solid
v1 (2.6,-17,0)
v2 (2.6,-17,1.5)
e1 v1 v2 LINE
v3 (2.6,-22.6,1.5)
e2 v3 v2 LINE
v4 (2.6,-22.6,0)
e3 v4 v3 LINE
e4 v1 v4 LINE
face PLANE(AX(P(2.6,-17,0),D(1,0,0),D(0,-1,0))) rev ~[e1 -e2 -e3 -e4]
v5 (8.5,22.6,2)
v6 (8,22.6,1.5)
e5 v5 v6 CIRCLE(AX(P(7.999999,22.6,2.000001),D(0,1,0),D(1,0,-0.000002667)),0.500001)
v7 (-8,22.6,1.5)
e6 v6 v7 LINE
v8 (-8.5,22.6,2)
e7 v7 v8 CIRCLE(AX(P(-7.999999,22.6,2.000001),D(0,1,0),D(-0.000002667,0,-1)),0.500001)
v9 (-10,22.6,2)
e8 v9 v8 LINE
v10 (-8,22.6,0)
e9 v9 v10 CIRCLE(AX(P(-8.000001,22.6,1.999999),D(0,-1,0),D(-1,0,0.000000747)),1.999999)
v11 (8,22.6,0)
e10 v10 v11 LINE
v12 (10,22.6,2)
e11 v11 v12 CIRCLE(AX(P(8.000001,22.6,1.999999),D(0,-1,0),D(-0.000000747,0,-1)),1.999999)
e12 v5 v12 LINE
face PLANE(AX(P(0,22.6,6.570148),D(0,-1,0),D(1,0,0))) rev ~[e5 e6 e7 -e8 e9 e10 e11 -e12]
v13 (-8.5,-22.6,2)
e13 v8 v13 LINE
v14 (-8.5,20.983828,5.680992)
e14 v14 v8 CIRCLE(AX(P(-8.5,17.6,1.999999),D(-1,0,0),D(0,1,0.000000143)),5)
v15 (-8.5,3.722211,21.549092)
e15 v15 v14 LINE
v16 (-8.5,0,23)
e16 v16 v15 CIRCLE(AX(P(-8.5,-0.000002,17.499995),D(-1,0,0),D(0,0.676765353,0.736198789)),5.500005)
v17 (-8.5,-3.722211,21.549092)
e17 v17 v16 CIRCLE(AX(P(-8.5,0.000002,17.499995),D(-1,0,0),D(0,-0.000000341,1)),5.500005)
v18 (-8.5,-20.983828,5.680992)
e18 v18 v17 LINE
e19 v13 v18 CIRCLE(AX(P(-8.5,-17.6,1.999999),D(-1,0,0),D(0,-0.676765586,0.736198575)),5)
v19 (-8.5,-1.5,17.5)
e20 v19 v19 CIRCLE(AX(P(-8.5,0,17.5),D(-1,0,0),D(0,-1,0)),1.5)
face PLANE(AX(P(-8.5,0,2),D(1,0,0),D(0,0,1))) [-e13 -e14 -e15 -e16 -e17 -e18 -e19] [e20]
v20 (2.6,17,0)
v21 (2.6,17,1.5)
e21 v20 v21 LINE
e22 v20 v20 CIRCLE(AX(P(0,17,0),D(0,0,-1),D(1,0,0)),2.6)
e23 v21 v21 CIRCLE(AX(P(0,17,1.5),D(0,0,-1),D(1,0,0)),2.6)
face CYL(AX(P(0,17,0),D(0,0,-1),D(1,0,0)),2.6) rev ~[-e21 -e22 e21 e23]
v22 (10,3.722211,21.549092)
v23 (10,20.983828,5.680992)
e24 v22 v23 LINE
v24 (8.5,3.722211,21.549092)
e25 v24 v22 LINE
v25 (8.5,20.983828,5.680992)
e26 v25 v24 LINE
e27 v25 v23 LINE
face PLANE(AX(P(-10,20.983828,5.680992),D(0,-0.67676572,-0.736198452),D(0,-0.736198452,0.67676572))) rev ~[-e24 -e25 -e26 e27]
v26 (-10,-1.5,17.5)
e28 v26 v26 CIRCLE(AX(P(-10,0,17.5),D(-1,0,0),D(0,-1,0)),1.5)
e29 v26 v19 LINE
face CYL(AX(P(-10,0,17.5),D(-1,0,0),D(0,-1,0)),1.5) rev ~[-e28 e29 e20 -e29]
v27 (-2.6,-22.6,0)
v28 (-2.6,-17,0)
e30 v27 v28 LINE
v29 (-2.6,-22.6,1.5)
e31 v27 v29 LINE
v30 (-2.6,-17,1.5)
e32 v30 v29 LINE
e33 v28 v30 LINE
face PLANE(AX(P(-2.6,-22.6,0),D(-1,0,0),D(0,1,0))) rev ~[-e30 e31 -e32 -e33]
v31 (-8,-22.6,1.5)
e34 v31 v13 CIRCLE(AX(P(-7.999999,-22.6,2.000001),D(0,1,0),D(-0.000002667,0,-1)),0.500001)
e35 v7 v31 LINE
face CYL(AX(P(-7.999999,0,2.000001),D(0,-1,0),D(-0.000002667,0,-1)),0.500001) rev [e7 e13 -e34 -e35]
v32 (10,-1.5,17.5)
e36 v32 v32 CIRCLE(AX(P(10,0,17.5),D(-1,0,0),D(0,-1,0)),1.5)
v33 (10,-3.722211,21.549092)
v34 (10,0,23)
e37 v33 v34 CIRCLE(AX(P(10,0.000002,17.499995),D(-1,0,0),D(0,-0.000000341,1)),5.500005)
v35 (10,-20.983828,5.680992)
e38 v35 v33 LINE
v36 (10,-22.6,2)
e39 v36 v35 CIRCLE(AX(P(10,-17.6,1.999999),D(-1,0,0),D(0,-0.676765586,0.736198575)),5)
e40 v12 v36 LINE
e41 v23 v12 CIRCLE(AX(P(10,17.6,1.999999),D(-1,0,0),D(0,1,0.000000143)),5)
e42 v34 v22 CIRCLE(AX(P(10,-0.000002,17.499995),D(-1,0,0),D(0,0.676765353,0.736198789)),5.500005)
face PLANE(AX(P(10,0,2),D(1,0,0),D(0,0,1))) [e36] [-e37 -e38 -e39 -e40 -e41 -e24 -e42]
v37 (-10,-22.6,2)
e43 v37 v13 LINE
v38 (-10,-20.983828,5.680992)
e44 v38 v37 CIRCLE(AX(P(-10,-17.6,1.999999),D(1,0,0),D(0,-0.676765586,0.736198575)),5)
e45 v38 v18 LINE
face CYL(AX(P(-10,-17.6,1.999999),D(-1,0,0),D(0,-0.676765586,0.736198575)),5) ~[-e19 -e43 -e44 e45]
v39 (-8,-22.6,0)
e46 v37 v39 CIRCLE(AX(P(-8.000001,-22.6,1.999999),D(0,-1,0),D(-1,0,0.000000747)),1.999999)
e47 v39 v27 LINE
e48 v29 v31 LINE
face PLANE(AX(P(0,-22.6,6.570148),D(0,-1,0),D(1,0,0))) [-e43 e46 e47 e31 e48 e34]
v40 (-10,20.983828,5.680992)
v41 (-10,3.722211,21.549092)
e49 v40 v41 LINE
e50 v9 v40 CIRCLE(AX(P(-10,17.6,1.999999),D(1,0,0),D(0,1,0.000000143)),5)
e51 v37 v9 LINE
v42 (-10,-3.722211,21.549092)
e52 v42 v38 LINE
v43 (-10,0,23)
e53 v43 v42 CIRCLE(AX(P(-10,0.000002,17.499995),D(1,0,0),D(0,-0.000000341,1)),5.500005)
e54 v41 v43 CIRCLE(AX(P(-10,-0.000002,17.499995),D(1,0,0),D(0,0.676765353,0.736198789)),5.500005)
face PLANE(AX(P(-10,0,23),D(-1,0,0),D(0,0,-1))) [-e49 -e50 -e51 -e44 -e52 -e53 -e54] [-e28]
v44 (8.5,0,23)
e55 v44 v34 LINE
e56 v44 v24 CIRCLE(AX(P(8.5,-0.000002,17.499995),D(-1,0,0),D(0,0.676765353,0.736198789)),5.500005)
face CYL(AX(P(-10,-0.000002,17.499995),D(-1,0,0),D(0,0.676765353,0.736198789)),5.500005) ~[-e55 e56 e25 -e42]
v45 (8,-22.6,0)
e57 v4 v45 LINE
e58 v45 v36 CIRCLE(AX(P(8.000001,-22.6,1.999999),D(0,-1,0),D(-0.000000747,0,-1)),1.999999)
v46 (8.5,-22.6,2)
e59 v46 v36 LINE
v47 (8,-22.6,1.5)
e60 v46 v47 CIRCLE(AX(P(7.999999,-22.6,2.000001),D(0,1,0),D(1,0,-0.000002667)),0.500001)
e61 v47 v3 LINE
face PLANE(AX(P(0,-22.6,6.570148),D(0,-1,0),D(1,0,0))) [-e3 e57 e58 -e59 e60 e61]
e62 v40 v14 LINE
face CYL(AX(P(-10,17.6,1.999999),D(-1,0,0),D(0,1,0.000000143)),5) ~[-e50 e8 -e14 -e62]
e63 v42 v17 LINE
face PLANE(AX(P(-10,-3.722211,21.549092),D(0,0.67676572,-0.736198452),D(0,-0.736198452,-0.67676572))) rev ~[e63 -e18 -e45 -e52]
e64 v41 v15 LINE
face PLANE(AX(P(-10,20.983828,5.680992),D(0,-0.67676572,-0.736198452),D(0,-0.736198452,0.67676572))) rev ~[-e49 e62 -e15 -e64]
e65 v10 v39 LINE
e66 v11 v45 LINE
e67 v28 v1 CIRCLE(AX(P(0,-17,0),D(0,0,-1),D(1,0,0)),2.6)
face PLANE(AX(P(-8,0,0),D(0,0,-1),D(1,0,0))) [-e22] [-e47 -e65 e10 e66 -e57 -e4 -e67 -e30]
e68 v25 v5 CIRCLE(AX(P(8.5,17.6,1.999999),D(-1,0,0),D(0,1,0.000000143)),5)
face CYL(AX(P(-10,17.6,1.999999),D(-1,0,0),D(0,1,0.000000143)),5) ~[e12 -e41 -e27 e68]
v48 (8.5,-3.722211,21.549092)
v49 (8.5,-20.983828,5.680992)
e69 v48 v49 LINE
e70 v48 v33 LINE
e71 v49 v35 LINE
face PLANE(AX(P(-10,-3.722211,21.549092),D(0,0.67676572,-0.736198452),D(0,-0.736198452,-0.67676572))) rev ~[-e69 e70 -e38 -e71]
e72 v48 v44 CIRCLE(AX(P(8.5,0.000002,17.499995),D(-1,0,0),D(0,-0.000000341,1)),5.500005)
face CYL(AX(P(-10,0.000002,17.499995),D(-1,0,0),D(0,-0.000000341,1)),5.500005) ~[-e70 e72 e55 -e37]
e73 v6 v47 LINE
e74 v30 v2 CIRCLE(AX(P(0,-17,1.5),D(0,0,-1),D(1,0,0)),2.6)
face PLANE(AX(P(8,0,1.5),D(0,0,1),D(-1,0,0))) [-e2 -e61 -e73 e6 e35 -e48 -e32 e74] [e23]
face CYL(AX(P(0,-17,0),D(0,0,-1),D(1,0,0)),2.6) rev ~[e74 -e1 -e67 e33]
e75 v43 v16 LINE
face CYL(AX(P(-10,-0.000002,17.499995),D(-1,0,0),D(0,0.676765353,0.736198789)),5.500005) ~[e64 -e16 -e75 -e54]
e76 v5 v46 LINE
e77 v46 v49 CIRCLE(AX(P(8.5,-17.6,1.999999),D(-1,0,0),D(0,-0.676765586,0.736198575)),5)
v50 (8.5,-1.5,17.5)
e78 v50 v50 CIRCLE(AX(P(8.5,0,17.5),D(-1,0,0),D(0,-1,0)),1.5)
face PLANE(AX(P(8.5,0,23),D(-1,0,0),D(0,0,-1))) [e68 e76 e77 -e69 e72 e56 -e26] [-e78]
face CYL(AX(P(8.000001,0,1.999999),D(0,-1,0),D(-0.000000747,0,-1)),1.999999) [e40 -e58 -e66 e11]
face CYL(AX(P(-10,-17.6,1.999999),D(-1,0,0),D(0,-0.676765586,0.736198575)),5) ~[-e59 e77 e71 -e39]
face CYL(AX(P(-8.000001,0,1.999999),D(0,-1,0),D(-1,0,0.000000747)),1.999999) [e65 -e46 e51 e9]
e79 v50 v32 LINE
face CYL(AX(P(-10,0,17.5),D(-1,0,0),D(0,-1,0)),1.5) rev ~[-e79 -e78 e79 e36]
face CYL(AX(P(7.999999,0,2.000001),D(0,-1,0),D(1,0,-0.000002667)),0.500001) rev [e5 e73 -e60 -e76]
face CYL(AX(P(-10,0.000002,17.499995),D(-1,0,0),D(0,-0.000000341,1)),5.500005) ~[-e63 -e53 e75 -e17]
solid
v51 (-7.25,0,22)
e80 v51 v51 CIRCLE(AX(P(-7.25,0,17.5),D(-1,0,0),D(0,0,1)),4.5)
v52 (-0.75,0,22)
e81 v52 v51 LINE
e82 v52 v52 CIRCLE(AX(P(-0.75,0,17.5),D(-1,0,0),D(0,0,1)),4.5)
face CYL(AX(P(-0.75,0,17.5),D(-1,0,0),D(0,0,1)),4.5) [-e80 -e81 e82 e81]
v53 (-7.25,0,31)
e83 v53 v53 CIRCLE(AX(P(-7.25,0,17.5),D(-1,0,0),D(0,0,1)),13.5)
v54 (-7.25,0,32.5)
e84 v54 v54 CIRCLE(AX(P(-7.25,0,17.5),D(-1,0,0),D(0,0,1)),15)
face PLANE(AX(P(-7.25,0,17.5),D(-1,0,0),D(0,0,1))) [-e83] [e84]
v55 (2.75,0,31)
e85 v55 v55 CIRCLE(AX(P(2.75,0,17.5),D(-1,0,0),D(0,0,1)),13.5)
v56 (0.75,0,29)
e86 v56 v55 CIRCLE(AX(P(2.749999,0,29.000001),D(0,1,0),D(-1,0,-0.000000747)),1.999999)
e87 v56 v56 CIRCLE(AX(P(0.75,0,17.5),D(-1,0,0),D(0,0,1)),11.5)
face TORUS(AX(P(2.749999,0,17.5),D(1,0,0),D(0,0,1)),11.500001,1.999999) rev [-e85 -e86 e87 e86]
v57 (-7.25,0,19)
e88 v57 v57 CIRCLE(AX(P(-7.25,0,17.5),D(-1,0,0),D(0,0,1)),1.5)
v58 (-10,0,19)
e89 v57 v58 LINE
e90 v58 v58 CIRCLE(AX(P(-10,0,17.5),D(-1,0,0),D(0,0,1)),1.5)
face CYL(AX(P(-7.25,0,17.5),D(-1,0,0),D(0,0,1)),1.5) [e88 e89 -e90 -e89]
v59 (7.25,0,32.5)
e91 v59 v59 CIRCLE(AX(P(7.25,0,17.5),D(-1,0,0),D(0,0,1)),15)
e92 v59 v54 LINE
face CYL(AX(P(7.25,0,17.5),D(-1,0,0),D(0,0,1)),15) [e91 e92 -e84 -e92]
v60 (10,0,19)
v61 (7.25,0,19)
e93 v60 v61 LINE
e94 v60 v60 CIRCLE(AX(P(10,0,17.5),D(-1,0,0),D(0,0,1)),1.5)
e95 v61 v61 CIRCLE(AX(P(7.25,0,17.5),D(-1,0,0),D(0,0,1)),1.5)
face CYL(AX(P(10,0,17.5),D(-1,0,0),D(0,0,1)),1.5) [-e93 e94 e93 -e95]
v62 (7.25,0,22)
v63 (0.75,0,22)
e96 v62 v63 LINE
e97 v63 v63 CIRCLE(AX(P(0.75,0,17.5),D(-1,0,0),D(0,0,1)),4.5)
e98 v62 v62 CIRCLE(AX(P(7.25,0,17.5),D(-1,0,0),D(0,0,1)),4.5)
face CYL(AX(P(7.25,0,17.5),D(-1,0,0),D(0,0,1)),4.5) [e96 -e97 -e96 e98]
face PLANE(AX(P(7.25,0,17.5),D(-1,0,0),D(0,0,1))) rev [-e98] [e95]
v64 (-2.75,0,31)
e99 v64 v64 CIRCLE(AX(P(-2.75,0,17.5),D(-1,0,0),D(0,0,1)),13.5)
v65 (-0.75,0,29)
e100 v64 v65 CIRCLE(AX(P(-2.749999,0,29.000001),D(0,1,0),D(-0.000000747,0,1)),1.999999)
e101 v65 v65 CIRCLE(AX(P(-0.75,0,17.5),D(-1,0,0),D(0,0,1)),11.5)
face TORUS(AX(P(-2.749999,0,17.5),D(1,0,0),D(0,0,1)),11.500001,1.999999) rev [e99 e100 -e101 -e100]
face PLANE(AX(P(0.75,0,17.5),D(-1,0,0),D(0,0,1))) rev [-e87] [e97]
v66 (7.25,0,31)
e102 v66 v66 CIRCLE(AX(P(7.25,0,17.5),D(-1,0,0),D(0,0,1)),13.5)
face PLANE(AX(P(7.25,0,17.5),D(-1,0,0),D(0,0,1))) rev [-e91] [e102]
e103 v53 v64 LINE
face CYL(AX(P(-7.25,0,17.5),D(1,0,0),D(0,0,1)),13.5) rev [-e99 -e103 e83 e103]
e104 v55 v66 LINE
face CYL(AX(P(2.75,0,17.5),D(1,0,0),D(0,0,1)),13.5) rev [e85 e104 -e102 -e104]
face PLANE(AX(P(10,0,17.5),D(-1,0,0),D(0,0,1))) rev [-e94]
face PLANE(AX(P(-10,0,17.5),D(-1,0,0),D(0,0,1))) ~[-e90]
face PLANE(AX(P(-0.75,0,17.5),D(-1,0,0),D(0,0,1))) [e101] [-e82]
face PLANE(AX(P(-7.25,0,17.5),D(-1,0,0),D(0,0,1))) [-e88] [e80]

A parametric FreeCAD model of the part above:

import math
import FreeCAD as App
import Part
import Sketcher

V = App.Vector

doc = App.newDocument("Part")
body = doc.addObject("PartDesign::Body", "Body")

# Sketch on XZ plane
sketch1 = body.newObject("Sketcher::SketchObject", "Sketch")
sketch1.AttachmentSupport = (doc.getObject("XZ_Plane"), [""])
sketch1.MapMode = "FlatFace"
sketch1.addGeometry([
    Part.ArcOfCircle(Part.Circle(V(-8, 2, 0), V(0, 0, 1), 2), math.radians(180), math.radians(270)),  # 0
    Part.LineSegment(V(-8, 0, 0), V(8, 0, 0)),  # 1
    Part.ArcOfCircle(Part.Circle(V(8, 2, 0), V(0, 0, 1), 2), math.radians(-90), math.radians(0)),  # 2
    Part.LineSegment(V(10, 2, 0), V(10, 23, 0)),  # 3
    Part.LineSegment(V(10, 23, 0), V(8.5, 23, 0)),  # 4
    Part.LineSegment(V(8.5, 23, 0), V(8.5, 2, 0)),  # 5
    Part.ArcOfCircle(Part.Circle(V(8, 2, 0), V(0, 0, 1), 0.5), math.radians(-90), math.radians(0)),  # 6
    Part.LineSegment(V(8, 1.5, 0), V(-8, 1.5, 0)),  # 7
    Part.ArcOfCircle(Part.Circle(V(-8, 2, 0), V(0, 0, 1), 0.5), math.radians(-180), math.radians(-90)),  # 8
    Part.LineSegment(V(-8.5, 2, 0), V(-8.5, 23, 0)),  # 9
    Part.LineSegment(V(-8.5, 23, 0), V(-10, 23, 0)),  # 10
    Part.LineSegment(V(-10, 23, 0), V(-10, 2, 0)),  # 11
], False)
sketch1.addConstraint([
    Sketcher.Constraint("Tangent", 0, 2, 1, 1),
    Sketcher.Constraint("Tangent", 1, 2, 2, 1),
    Sketcher.Constraint("Tangent", 2, 2, 3, 1),
    Sketcher.Constraint("Coincident", 3, 2, 4, 1),
    Sketcher.Constraint("Coincident", 4, 2, 5, 1),
    Sketcher.Constraint("Coincident", 5, 2, 6, 2),
    Sketcher.Constraint("Coincident", 6, 1, 7, 1),
    Sketcher.Constraint("Coincident", 7, 2, 8, 2),
    Sketcher.Constraint("Coincident", 8, 1, 9, 1),
    Sketcher.Constraint("Coincident", 9, 2, 10, 1),
    Sketcher.Constraint("Coincident", 10, 2, 11, 1),
    Sketcher.Constraint("Tangent", 11, 2, 0, 1),
    Sketcher.Constraint("Horizontal", 1),
    Sketcher.Constraint("Vertical", 3),
    Sketcher.Constraint("Horizontal", 4),
    Sketcher.Constraint("Vertical", 5),
    Sketcher.Constraint("Horizontal", 7),
    Sketcher.Constraint("Vertical", 9),
    Sketcher.Constraint("Horizontal", 10),
    Sketcher.Constraint("Vertical", 11),
    Sketcher.Constraint("Coincident", 6, 3, 2, 3),
    Sketcher.Constraint("Coincident", 8, 3, 0, 3),
    Sketcher.Constraint("Equal", 0, 2),
    Sketcher.Constraint("Symmetric", 0, 2, 1, 2, -1, 1),
    Sketcher.Constraint("Horizontal", 2, 2, 5, 2),
    Sketcher.Constraint("Horizontal", 5, 2, 8, 1),
    Sketcher.Constraint("Horizontal", 4, 2, 9, 2),
    Sketcher.Constraint("Vertical", 1, 2, 6, 1),
    Sketcher.Constraint("Vertical", 0, 2, 7, 2),
    Sketcher.Constraint("Radius", 0, 1.999999),
    Sketcher.Constraint("Radius", 6, 0.500001),
    Sketcher.Constraint("DistanceX", 1, 1, 1, 2, 16.0),
    Sketcher.Constraint("DistanceY", 3, 1, 3, 2, 21.0),
])
pad1 = body.newObject("PartDesign::Pad", "Pad")
pad1.Profile = sketch1
pad1.Type = "TwoLengths"
pad1.Length = 22.6
pad1.Length2 = 22.6

# Sketch on YZ plane
sketch2 = body.newObject("Sketcher::SketchObject", "Sketch001")
sketch2.AttachmentSupport = (doc.getObject("YZ_Plane"), [""])
sketch2.MapMode = "FlatFace"
sketch2.AttachmentOffset = App.Placement(V(0, 0, -10), App.Rotation())
sketch2.addGeometry([
    Part.ArcOfCircle(Part.Circle(V(0, 17.5, 0), V(0, 0, 1), 5.5), math.radians(90), math.radians(133)),  # 0
    Part.LineSegment(V(-3.7, 21.5, 0), V(-21, 5.7, 0)),  # 1
    Part.ArcOfCircle(Part.Circle(V(-17.6, 2, 0), V(0, 0, 1), 5), math.radians(133), math.radians(180)),  # 2
    Part.LineSegment(V(-22.6, 2, 0), V(-22.6, 23, 0)),  # 3
    Part.LineSegment(V(-22.6, 23, 0), V(0, 23, 0)),  # 4
    Part.ArcOfCircle(Part.Circle(V(0, 17.5, 0), V(0, 0, 1), 5.5), math.radians(47), math.radians(90)),  # 5
    Part.LineSegment(V(0, 23, 0), V(22.6, 23, 0)),  # 6
    Part.LineSegment(V(22.6, 23, 0), V(22.6, 2, 0)),  # 7
    Part.ArcOfCircle(Part.Circle(V(17.6, 2, 0), V(0, 0, 1), 5), math.radians(0), math.radians(47)),  # 8
    Part.LineSegment(V(21, 5.7, 0), V(3.7, 21.5, 0)),  # 9
    Part.Circle(V(0, 17.5, 0), V(0, 0, 1), 1.5),  # 10
], False)
sketch2.addConstraint([
    Sketcher.Constraint("Tangent", 0, 2, 1, 1),
    Sketcher.Constraint("Tangent", 1, 2, 2, 1),
    Sketcher.Constraint("Tangent", 2, 2, 3, 1),
    Sketcher.Constraint("Coincident", 3, 2, 4, 1),
    Sketcher.Constraint("Tangent", 4, 2, 0, 1),
    Sketcher.Constraint("Tangent", 5, 2, 6, 1),
    Sketcher.Constraint("Coincident", 6, 2, 7, 1),
    Sketcher.Constraint("Tangent", 7, 2, 8, 1),
    Sketcher.Constraint("Tangent", 8, 2, 9, 1),
    Sketcher.Constraint("Tangent", 9, 2, 5, 1),
    Sketcher.Constraint("Vertical", 3),
    Sketcher.Constraint("Horizontal", 4),
    Sketcher.Constraint("Horizontal", 6),
    Sketcher.Constraint("Vertical", 7),
    Sketcher.Constraint("Coincident", 5, 3, 0, 3),
    Sketcher.Constraint("Coincident", 10, 3, 0, 3),
    Sketcher.Constraint("Equal", 0, 5),
    Sketcher.Constraint("Equal", 2, 8),
    Sketcher.Constraint("Symmetric", 2, 3, 8, 3, -2),
    Sketcher.Constraint("PointOnObject", 0, 3, -2),
    Sketcher.Constraint("Diameter", 10, 3.0),
    Sketcher.Constraint("Radius", 2, 5.0),
    Sketcher.Constraint("DistanceY", 3, 1, 3, 2, 21.0),
    Sketcher.Constraint("DistanceX", 4, 1, 4, 2, 22.6),
    Sketcher.Constraint("DistanceY", -1, 1, 2, 3, 1.999999),
    Sketcher.Constraint("DistanceY", -1, 1, 10, 3, 17.5),
])
pocket1 = body.newObject("PartDesign::Pocket", "Pocket")
pocket1.Profile = sketch2
pocket1.Length = 25
pocket1.Reversed = True

# Sketch on XY plane
sketch3 = body.newObject("Sketcher::SketchObject", "Sketch002")
sketch3.AttachmentSupport = (doc.getObject("XY_Plane"), [""])
sketch3.MapMode = "FlatFace"
sketch3.addGeometry([
    Part.ArcOfCircle(Part.Circle(V(0, -17, 0), V(0, 0, 1), 2.6), math.radians(0), math.radians(180)),  # 0
    Part.LineSegment(V(2.6, -17, 0), V(2.6, -22.6, 0)),  # 1
    Part.LineSegment(V(2.6, -22.6, 0), V(-2.6, -22.6, 0)),  # 2
    Part.LineSegment(V(-2.6, -22.6, 0), V(-2.6, -17, 0)),  # 3
    Part.Circle(V(0, 17, 0), V(0, 0, 1), 2.6),  # 4
], False)
sketch3.addConstraint([
    Sketcher.Constraint("Tangent", 0, 1, 1, 1),
    Sketcher.Constraint("Coincident", 1, 2, 2, 1),
    Sketcher.Constraint("Coincident", 2, 2, 3, 1),
    Sketcher.Constraint("Tangent", 3, 2, 0, 2),
    Sketcher.Constraint("Vertical", 1),
    Sketcher.Constraint("Horizontal", 2),
    Sketcher.Constraint("Vertical", 3),
    Sketcher.Constraint("Equal", 0, 4),
    Sketcher.Constraint("Symmetric", 0, 3, 4, 3, -1, 1),
    Sketcher.Constraint("PointOnObject", 0, 3, -2),
    Sketcher.Constraint("Diameter", 4, 5.2),
    Sketcher.Constraint("DistanceY", 1, 2, 1, 1, 5.6),
    Sketcher.Constraint("DistanceY", 0, 3, -1, 1, 17.0),
])
pocket2 = body.newObject("PartDesign::Pocket", "Pocket001")
pocket2.Profile = sketch3
pocket2.Length = 25
pocket2.Reversed = True
body2 = doc.addObject("PartDesign::Body", "Body001")

# Sketch on XZ plane
sketch4 = body2.newObject("Sketcher::SketchObject", "Sketch003")
sketch4.AttachmentSupport = (doc.getObject("XZ_Plane001"), [""])
sketch4.MapMode = "FlatFace"
sketch4.addGeometry([
    Part.LineSegment(V(10, 17.5, 0), V(10, 19, 0)),  # 0
    Part.LineSegment(V(10, 19, 0), V(7.2, 19, 0)),  # 1
    Part.LineSegment(V(7.2, 19, 0), V(7.2, 22, 0)),  # 2
    Part.LineSegment(V(7.2, 22, 0), V(0.8, 22, 0)),  # 3
    Part.LineSegment(V(0.8, 22, 0), V(0.8, 29, 0)),  # 4
    Part.ArcOfCircle(Part.Circle(V(2.7, 29, 0), V(0, 0, 1), 2), math.radians(90), math.radians(180)),  # 5
    Part.LineSegment(V(2.8, 31, 0), V(7.2, 31, 0)),  # 6
    Part.LineSegment(V(7.2, 31, 0), V(7.2, 32.5, 0)),  # 7
    Part.LineSegment(V(7.2, 32.5, 0), V(-7.2, 32.5, 0)),  # 8
    Part.LineSegment(V(-7.2, 32.5, 0), V(-7.2, 31, 0)),  # 9
    Part.LineSegment(V(-7.2, 31, 0), V(-2.8, 31, 0)),  # 10
    Part.ArcOfCircle(Part.Circle(V(-2.7, 29, 0), V(0, 0, 1), 2), math.radians(0), math.radians(90)),  # 11
    Part.LineSegment(V(-0.8, 29, 0), V(-0.8, 22, 0)),  # 12
    Part.LineSegment(V(-0.8, 22, 0), V(-7.2, 22, 0)),  # 13
    Part.LineSegment(V(-7.2, 22, 0), V(-7.2, 19, 0)),  # 14
    Part.LineSegment(V(-7.2, 19, 0), V(-10, 19, 0)),  # 15
    Part.LineSegment(V(-10, 19, 0), V(-10, 17.5, 0)),  # 16
    Part.LineSegment(V(-10, 17.5, 0), V(10, 17.5, 0)),  # 17
], False)
sketch4.addGeometry(Part.LineSegment(V(10, 17.5, 0), V(-10, 17.5, 0)), True)  # axis
sketch4.addConstraint([
    Sketcher.Constraint("Coincident", 0, 2, 1, 1),
    Sketcher.Constraint("Coincident", 1, 2, 2, 1),
    Sketcher.Constraint("Coincident", 2, 2, 3, 1),
    Sketcher.Constraint("Coincident", 3, 2, 4, 1),
    Sketcher.Constraint("Tangent", 4, 2, 5, 2),
    Sketcher.Constraint("Tangent", 5, 1, 6, 1),
    Sketcher.Constraint("Coincident", 6, 2, 7, 1),
    Sketcher.Constraint("Coincident", 7, 2, 8, 1),
    Sketcher.Constraint("Coincident", 8, 2, 9, 1),
    Sketcher.Constraint("Coincident", 9, 2, 10, 1),
    Sketcher.Constraint("Tangent", 10, 2, 11, 2),
    Sketcher.Constraint("Tangent", 11, 1, 12, 1),
    Sketcher.Constraint("Coincident", 12, 2, 13, 1),
    Sketcher.Constraint("Coincident", 13, 2, 14, 1),
    Sketcher.Constraint("Coincident", 14, 2, 15, 1),
    Sketcher.Constraint("Coincident", 15, 2, 16, 1),
    Sketcher.Constraint("Coincident", 16, 2, 17, 1),
    Sketcher.Constraint("Coincident", 17, 2, 0, 1),
    Sketcher.Constraint("Vertical", 0),
    Sketcher.Constraint("Horizontal", 1),
    Sketcher.Constraint("Vertical", 2),
    Sketcher.Constraint("Horizontal", 3),
    Sketcher.Constraint("Vertical", 4),
    Sketcher.Constraint("Horizontal", 6),
    Sketcher.Constraint("Vertical", 7),
    Sketcher.Constraint("Horizontal", 8),
    Sketcher.Constraint("Vertical", 9),
    Sketcher.Constraint("Horizontal", 10),
    Sketcher.Constraint("Vertical", 12),
    Sketcher.Constraint("Horizontal", 13),
    Sketcher.Constraint("Vertical", 14),
    Sketcher.Constraint("Horizontal", 15),
    Sketcher.Constraint("Vertical", 16),
    Sketcher.Constraint("Horizontal", 17),
    Sketcher.Constraint("Horizontal", 18),
    Sketcher.Constraint("Coincident", 18, 1, 17, 2),
    Sketcher.Constraint("Equal", 5, 11),
    Sketcher.Constraint("Symmetric", 5, 3, 11, 3, -2),
    Sketcher.Constraint("Symmetric", 2, 2, 13, 2, -2),
    Sketcher.Constraint("Symmetric", 0, 2, 15, 2, -2),
    Sketcher.Constraint("Vertical", 2, 2, 6, 2),
    Sketcher.Constraint("Vertical", 9, 2, 13, 2),
    Sketcher.Constraint("Vertical", 15, 2, 18, 2),
    Sketcher.Constraint("Equal", 0, 7),
    Sketcher.Constraint("Radius", 5, 1.999999),
    Sketcher.Constraint("DistanceX", 17, 1, 17, 2, 20.0),
    Sketcher.Constraint("DistanceY", 2, 1, 2, 2, 3.0),
    Sketcher.Constraint("DistanceY", 4, 1, 4, 2, 7.0),
    Sketcher.Constraint("DistanceX", 3, 2, 3, 1, 6.5),
    Sketcher.Constraint("DistanceX", 8, 2, 8, 1, 14.5),
    Sketcher.Constraint("DistanceY", 0, 1, 0, 2, 1.5),
    Sketcher.Constraint("DistanceY", -1, 1, 5, 3, 29.000001),
])
revolution = body2.newObject("PartDesign::Revolution", "Revolution")
revolution.Profile = sketch4
revolution.ReferenceAxis = (sketch4, ["Axis0"])
revolution.Angle = 360

doc.recompute()
